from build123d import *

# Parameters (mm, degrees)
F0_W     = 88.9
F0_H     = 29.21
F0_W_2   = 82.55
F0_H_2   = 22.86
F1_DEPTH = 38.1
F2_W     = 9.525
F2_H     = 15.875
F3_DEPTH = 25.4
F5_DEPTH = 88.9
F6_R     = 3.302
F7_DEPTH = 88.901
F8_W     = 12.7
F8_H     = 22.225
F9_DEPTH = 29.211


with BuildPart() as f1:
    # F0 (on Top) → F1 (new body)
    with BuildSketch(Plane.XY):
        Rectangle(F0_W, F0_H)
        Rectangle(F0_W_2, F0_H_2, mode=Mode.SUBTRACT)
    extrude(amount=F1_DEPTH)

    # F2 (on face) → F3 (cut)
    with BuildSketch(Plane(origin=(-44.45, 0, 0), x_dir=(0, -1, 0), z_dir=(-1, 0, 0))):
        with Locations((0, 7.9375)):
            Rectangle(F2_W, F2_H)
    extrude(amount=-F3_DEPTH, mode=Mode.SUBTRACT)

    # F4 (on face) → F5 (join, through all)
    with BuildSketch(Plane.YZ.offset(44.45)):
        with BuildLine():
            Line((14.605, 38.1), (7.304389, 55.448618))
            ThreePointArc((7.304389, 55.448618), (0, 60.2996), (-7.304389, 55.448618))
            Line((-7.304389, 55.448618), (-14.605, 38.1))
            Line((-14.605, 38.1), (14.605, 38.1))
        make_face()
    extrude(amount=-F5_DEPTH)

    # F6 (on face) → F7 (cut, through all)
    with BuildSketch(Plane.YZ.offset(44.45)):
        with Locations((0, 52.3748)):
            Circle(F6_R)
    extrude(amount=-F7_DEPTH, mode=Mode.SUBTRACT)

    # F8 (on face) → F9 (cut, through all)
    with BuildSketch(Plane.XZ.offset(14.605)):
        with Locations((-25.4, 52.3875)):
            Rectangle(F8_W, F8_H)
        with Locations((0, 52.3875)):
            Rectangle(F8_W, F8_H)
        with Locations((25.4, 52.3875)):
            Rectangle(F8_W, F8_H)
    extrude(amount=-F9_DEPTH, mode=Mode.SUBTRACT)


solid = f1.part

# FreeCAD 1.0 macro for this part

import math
import FreeCAD as App
import Part
import Sketcher
from FreeCAD import Vector
Q = App.Units.Quantity

doc = App.newDocument("Part")
body = doc.addObject("PartDesign::Body", "Body")

sketch1 = body.newObject("Sketcher::SketchObject", "Sketch")
sketch1.AttachmentSupport = (doc.getObject("XY_Plane"), [""])
sketch1.MapMode = "FlatFace"
sketch1.addGeometry(Part.LineSegment(Vector(-44, 15, 0), Vector(-44, -15, 0)), False)
sketch1.addGeometry(Part.LineSegment(Vector(-44, -15, 0), Vector(44, -15, 0)), False)
sketch1.addGeometry(Part.LineSegment(Vector(44, -15, 0), Vector(44, 15, 0)), False)
sketch1.addGeometry(Part.LineSegment(Vector(44, 15, 0), Vector(-44, 15, 0)), False)
sketch1.addGeometry(Part.LineSegment(Vector(41, -11, 0), Vector(-41, -11, 0)), False)
sketch1.addGeometry(Part.LineSegment(Vector(-41, -11, 0), Vector(-41, 11, 0)), False)
sketch1.addGeometry(Part.LineSegment(Vector(-41, 11, 0), Vector(41, 11, 0)), False)
sketch1.addGeometry(Part.LineSegment(Vector(41, 11, 0), Vector(41, -11, 0)), False)
sketch1.addConstraint(Sketcher.Constraint("Coincident", 0, 2, 1, 1))
sketch1.addConstraint(Sketcher.Constraint("Coincident", 1, 2, 2, 1))
sketch1.addConstraint(Sketcher.Constraint("Coincident", 2, 2, 3, 1))
sketch1.addConstraint(Sketcher.Constraint("Coincident", 3, 2, 0, 1))
sketch1.addConstraint(Sketcher.Constraint("Coincident", 4, 2, 5, 1))
sketch1.addConstraint(Sketcher.Constraint("Coincident", 5, 2, 6, 1))
sketch1.addConstraint(Sketcher.Constraint("Coincident", 6, 2, 7, 1))
sketch1.addConstraint(Sketcher.Constraint("Coincident", 7, 2, 4, 1))
sketch1.addConstraint(Sketcher.Constraint("Vertical", 0))
sketch1.addConstraint(Sketcher.Constraint("Horizontal", 1))
sketch1.addConstraint(Sketcher.Constraint("Vertical", 2))
sketch1.addConstraint(Sketcher.Constraint("Horizontal", 3))
sketch1.addConstraint(Sketcher.Constraint("Horizontal", 4))
sketch1.addConstraint(Sketcher.Constraint("Vertical", 5))
sketch1.addConstraint(Sketcher.Constraint("Horizontal", 6))
sketch1.addConstraint(Sketcher.Constraint("Vertical", 7))
sketch1.addConstraint(Sketcher.Constraint("Symmetric", 0, 2, 2, 2, -1, 1))
sketch1.addConstraint(Sketcher.Constraint("Symmetric", 4, 2, 6, 2, -1, 1))
sketch1.addConstraint(Sketcher.Constraint("DistanceX", 1, 1, 1, 2, Q("3.5 in")))
sketch1.addConstraint(Sketcher.Constraint("DistanceY", 5, 1, 5, 2, Q("0.9 in")))
sketch1.addConstraint(Sketcher.Constraint("DistanceX", 4, 2, 4, 1, Q("3.25 in")))
sketch1.addConstraint(Sketcher.Constraint("DistanceY", 0, 2, 0, 1, Q("1.15 in")))
pad1 = body.newObject("PartDesign::Pad", "Pad")
pad1.Profile = sketch1
pad1.Length = Q("1.5 in")

sketch2 = body.newObject("Sketcher::SketchObject", "Sketch001")
sketch2.AttachmentSupport = (doc.getObject("YZ_Plane"), [""])
sketch2.MapMode = "FlatFace"
sketch2.AttachmentOffset = App.Placement(Vector(0, 0, -1.75 * 25.4), App.Rotation())
sketch2.addGeometry(Part.LineSegment(Vector(5, 16, 0), Vector(5, 0, 0)), False)
sketch2.addGeometry(Part.LineSegment(Vector(5, 0, 0), Vector(-5, 0, 0)), False)
sketch2.addGeometry(Part.LineSegment(Vector(-5, 0, 0), Vector(-5, 16, 0)), False)
sketch2.addGeometry(Part.LineSegment(Vector(-5, 16, 0), Vector(5, 16, 0)), False)
sketch2.addConstraint(Sketcher.Constraint("Coincident", 0, 2, 1, 1))
sketch2.addConstraint(Sketcher.Constraint("Coincident", 1, 2, 2, 1))
sketch2.addConstraint(Sketcher.Constraint("Coincident", 2, 2, 3, 1))
sketch2.addConstraint(Sketcher.Constraint("Coincident", 3, 2, 0, 1))
sketch2.addConstraint(Sketcher.Constraint("Vertical", 0))
sketch2.addConstraint(Sketcher.Constraint("Horizontal", 1))
sketch2.addConstraint(Sketcher.Constraint("Vertical", 2))
sketch2.addConstraint(Sketcher.Constraint("Horizontal", 3))
sketch2.addConstraint(Sketcher.Constraint("Symmetric", 0, 2, 1, 2, -1, 1))
sketch2.addConstraint(Sketcher.Constraint("DistanceX", 1, 2, 1, 1, Q("0.375 in")))
sketch2.addConstraint(Sketcher.Constraint("DistanceY", 0, 2, 0, 1, Q("0.625 in")))
pocket1 = body.newObject("PartDesign::Pocket", "Pocket")
pocket1.Profile = sketch2
pocket1.Length = Q("1 in")
pocket1.Reversed = True

sketch3 = body.newObject("Sketcher::SketchObject", "Sketch002")
sketch3.AttachmentSupport = (doc.getObject("YZ_Plane"), [""])
sketch3.MapMode = "FlatFace"
sketch3.AttachmentOffset = App.Placement(Vector(0, 0, 1.75 * 25.4), App.Rotation())
sketch3.addGeometry(Part.LineSegment(Vector(15, 38, 0), Vector(7, 55, 0)), False)
sketch3.addGeometry(Part.ArcOfCircle(Part.Circle(Vector(0, 52, 0), Vector(0, 0, 1), 8), math.radians(23), math.radians(157)), False)
sketch3.addGeometry(Part.LineSegment(Vector(-7, 55, 0), Vector(-15, 38, 0)), False)
sketch3.addGeometry(Part.LineSegment(Vector(-15, 38, 0), Vector(15, 38, 0)), False)
sketch3.addConstraint(Sketcher.Constraint("Tangent", 0, 2, 1, 1))
sketch3.addConstraint(Sketcher.Constraint("Tangent", 1, 2, 2, 1))
sketch3.addConstraint(Sketcher.Constraint("Coincident", 2, 2, 3, 1))
sketch3.addConstraint(Sketcher.Constraint("Coincident", 3, 2, 0, 1))
sketch3.addConstraint(Sketcher.Constraint("Horizontal", 3))
sketch3.addConstraint(Sketcher.Constraint("Symmetric", 0, 2, 1, 2, -2))
sketch3.addConstraint(Sketcher.Constraint("Radius", 1, Q("0.312 in")))
sketch3.addConstraint(Sketcher.Constraint("DistanceX", 3, 1, 3, 2, Q("1.15 in")))
sketch3.addConstraint(Sketcher.Constraint("DistanceY", -1, 1, 2, 2, Q("1.5 in")))
sketch3.addConstraint(Sketcher.Constraint("DistanceY", -1, 1, 1, 3, Q("2.062 in")))
pad2 = body.newObject("PartDesign::Pad", "Pad001")
pad2.Profile = sketch3
pad2.Length = Q("3.5 in")
pad2.Reversed = True

sketch4 = body.newObject("Sketcher::SketchObject", "Sketch003")
sketch4.AttachmentSupport = (doc.getObject("YZ_Plane"), [""])
sketch4.MapMode = "FlatFace"
sketch4.AttachmentOffset = App.Placement(Vector(0, 0, 1.75 * 25.4), App.Rotation())
sketch4.addGeometry(Part.Circle(Vector(0, 52.4, 0), Vector(0, 0, 1), 3.3), False)
sketch4.addConstraint(Sketcher.Constraint("PointOnObject", 0, 3, -2))
sketch4.addConstraint(Sketcher.Constraint("Diameter", 0, Q("0.26 in")))
sketch4.addConstraint(Sketcher.Constraint("DistanceY", -1, 1, 0, 3, Q("2.062 in")))
pocket2 = body.newObject("PartDesign::Pocket", "Pocket001")
pocket2.Profile = sketch4
pocket2.Type = "ThroughAll"

sketch5 = body.newObject("Sketcher::SketchObject", "Sketch004")
sketch5.AttachmentSupport = (doc.getObject("XZ_Plane"), [""])
sketch5.MapMode = "FlatFace"
sketch5.AttachmentOffset = App.Placement(Vector(0, 0, 0.575 * 25.4), App.Rotation())
sketch5.addGeometry(Part.LineSegment(Vector(-32, 64, 0), Vector(-32, 41, 0)), False)
sketch5.addGeometry(Part.LineSegment(Vector(-32, 41, 0), Vector(-19, 41, 0)), False)
sketch5.addGeometry(Part.LineSegment(Vector(-19, 41, 0), Vector(-19, 64, 0)), False)
sketch5.addGeometry(Part.LineSegment(Vector(-19, 64, 0), Vector(-32, 64, 0)), False)
sketch5.addGeometry(Part.LineSegment(Vector(-6, 64, 0), Vector(-6, 41, 0)), False)
sketch5.addGeometry(Part.LineSegment(Vector(-6, 41, 0), Vector(6, 41, 0)), False)
sketch5.addGeometry(Part.LineSegment(Vector(6, 41, 0), Vector(6, 64, 0)), False)
sketch5.addGeometry(Part.LineSegment(Vector(6, 64, 0), Vector(-6, 64, 0)), False)
sketch5.addGeometry(Part.LineSegment(Vector(19, 64, 0), Vector(19, 41, 0)), False)
sketch5.addGeometry(Part.LineSegment(Vector(19, 41, 0), Vector(32, 41, 0)), False)
sketch5.addGeometry(Part.LineSegment(Vector(32, 41, 0), Vector(32, 64, 0)), False)
sketch5.addGeometry(Part.LineSegment(Vector(32, 64, 0), Vector(19, 64, 0)), False)
sketch5.addConstraint(Sketcher.Constraint("Coincident", 0, 2, 1, 1))
sketch5.addConstraint(Sketcher.Constraint("Coincident", 1, 2, 2, 1))
sketch5.addConstraint(Sketcher.Constraint("Coincident", 2, 2, 3, 1))
sketch5.addConstraint(Sketcher.Constraint("Coincident", 3, 2, 0, 1))
sketch5.addConstraint(Sketcher.Constraint("Coincident", 4, 2, 5, 1))
sketch5.addConstraint(Sketcher.Constraint("Coincident", 5, 2, 6, 1))
sketch5.addConstraint(Sketcher.Constraint("Coincident", 6, 2, 7, 1))
sketch5.addConstraint(Sketcher.Constraint("Coincident", 7, 2, 4, 1))
sketch5.addConstraint(Sketcher.Constraint("Coincident", 8, 2, 9, 1))
sketch5.addConstraint(Sketcher.Constraint("Coincident", 9, 2, 10, 1))
sketch5.addConstraint(Sketcher.Constraint("Coincident", 10, 2, 11, 1))
sketch5.addConstraint(Sketcher.Constraint("Coincident", 11, 2, 8, 1))
sketch5.addConstraint(Sketcher.Constraint("Vertical", 0))
sketch5.addConstraint(Sketcher.Constraint("Horizontal", 1))
sketch5.addConstraint(Sketcher.Constraint("Vertical", 2))
sketch5.addConstraint(Sketcher.Constraint("Horizontal", 3))
sketch5.addConstraint(Sketcher.Constraint("Vertical", 4))
sketch5.addConstraint(Sketcher.Constraint("Horizontal", 5))
sketch5.addConstraint(Sketcher.Constraint("Vertical", 6))
sketch5.addConstraint(Sketcher.Constraint("Horizontal", 7))
sketch5.addConstraint(Sketcher.Constraint("Vertical", 8))
sketch5.addConstraint(Sketcher.Constraint("Horizontal", 9))
sketch5.addConstraint(Sketcher.Constraint("Vertical", 10))
sketch5.addConstraint(Sketcher.Constraint("Horizontal", 11))
sketch5.addConstraint(Sketcher.Constraint("Symmetric", 1, 2, 8, 2, -2))
sketch5.addConstraint(Sketcher.Constraint("Symmetric", 3, 2, 10, 2, -2))
sketch5.addConstraint(Sketcher.Constraint("Horizontal", 1, 2, 4, 2))
sketch5.addConstraint(Sketcher.Constraint("Horizontal", 3, 2, 6, 2))
sketch5.addConstraint(Sketcher.Constraint("Equal", 3, 5))
sketch5.addConstraint(Sketcher.Constraint("DistanceX", 1, 1, 1, 2, Q("0.5 in")))
sketch5.addConstraint(Sketcher.Constraint("DistanceX", 0, 2, 4, 2, Q("1 in")))
sketch5.addConstraint(Sketcher.Constraint("DistanceX", 4, 2, 8, 2, Q("1 in")))
sketch5.addConstraint(Sketcher.Constraint("DistanceY", -1, 1, 2, 2, Q("2.5 in")))
sketch5.addConstraint(Sketcher.Constraint("DistanceY", 0, 2, 0, 1, Q("0.875 in")))
pocket3 = body.newObject("PartDesign::Pocket", "Pocket002")
pocket3.Profile = sketch5
pocket3.Type = "ThroughAll"

doc.recompute()
